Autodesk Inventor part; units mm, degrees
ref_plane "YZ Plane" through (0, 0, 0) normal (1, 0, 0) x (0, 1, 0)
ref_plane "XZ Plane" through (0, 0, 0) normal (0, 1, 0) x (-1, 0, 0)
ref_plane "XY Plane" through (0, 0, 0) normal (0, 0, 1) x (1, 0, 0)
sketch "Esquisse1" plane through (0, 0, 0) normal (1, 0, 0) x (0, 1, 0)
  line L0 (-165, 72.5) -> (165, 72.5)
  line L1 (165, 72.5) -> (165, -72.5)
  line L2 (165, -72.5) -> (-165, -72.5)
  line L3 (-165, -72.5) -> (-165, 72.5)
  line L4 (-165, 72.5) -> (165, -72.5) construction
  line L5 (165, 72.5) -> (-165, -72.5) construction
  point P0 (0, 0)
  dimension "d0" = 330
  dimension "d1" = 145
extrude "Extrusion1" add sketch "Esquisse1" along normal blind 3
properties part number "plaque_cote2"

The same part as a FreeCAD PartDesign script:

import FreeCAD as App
import Part
import Sketcher

V = App.Vector


def add_polygon(sketch, points):
    """Adds a closed chain of lines whose ends are joined by coincident constraints."""
    first, n = sketch.GeometryCount, len(points)
    for a, b in zip(points, points[1:] + points[:1]):
        sketch.addGeometry(Part.LineSegment(App.Vector(*a, 0), App.Vector(*b, 0)), False)
    for i in range(n):
        sketch.addConstraint(Sketcher.Constraint("Coincident", first + i, 2, first + (i + 1) % n, 1))

doc = App.newDocument("Part")
params = doc.addObject("Spreadsheet::Sheet", "Params")
for row, (alias, value) in enumerate([
    ("sketch1_width", "330 mm"),
    ("sketch1_height", "145 mm"),
    ("pad1_length", "3 mm"),
], start=1):
    params.set(f"A{row}", alias)
    params.set(f"B{row}", "=" + value)
    params.setAlias(f"B{row}", alias)

body = doc.addObject("PartDesign::Body", "Body")

# Sketch on YZ plane
sketch1 = body.newObject("Sketcher::SketchObject", "Sketch")
sketch1.AttachmentSupport = (doc.getObject("YZ_Plane"), [""])
sketch1.MapMode = "FlatFace"
add_polygon(sketch1, [(165, 72), (-165, 72), (-165, -72), (165, -72)])  # lines 0-3
sketch1.addConstraint(Sketcher.Constraint("Horizontal", 0))
sketch1.addConstraint(Sketcher.Constraint("Vertical", 1))
sketch1.addConstraint(Sketcher.Constraint("Horizontal", 2))
sketch1.addConstraint(Sketcher.Constraint("Vertical", 3))
sketch1.addConstraint(Sketcher.Constraint("Symmetric", 0, 2, 2, 2, -1, 1))
sketch1.addConstraint(Sketcher.Constraint("DistanceX", 0, 2, 0, 1, 330.0))
sketch1.addConstraint(Sketcher.Constraint("DistanceY", 1, 2, 1, 1, 145.0))
sketch1.setExpression("Constraints[9]", "Params.sketch1_width")
sketch1.setExpression("Constraints[10]", "Params.sketch1_height")
pad1 = body.newObject("PartDesign::Pad", "Pad")
pad1.Profile = sketch1
pad1.setExpression("Length", "Params.pad1_length")

doc.recompute()
